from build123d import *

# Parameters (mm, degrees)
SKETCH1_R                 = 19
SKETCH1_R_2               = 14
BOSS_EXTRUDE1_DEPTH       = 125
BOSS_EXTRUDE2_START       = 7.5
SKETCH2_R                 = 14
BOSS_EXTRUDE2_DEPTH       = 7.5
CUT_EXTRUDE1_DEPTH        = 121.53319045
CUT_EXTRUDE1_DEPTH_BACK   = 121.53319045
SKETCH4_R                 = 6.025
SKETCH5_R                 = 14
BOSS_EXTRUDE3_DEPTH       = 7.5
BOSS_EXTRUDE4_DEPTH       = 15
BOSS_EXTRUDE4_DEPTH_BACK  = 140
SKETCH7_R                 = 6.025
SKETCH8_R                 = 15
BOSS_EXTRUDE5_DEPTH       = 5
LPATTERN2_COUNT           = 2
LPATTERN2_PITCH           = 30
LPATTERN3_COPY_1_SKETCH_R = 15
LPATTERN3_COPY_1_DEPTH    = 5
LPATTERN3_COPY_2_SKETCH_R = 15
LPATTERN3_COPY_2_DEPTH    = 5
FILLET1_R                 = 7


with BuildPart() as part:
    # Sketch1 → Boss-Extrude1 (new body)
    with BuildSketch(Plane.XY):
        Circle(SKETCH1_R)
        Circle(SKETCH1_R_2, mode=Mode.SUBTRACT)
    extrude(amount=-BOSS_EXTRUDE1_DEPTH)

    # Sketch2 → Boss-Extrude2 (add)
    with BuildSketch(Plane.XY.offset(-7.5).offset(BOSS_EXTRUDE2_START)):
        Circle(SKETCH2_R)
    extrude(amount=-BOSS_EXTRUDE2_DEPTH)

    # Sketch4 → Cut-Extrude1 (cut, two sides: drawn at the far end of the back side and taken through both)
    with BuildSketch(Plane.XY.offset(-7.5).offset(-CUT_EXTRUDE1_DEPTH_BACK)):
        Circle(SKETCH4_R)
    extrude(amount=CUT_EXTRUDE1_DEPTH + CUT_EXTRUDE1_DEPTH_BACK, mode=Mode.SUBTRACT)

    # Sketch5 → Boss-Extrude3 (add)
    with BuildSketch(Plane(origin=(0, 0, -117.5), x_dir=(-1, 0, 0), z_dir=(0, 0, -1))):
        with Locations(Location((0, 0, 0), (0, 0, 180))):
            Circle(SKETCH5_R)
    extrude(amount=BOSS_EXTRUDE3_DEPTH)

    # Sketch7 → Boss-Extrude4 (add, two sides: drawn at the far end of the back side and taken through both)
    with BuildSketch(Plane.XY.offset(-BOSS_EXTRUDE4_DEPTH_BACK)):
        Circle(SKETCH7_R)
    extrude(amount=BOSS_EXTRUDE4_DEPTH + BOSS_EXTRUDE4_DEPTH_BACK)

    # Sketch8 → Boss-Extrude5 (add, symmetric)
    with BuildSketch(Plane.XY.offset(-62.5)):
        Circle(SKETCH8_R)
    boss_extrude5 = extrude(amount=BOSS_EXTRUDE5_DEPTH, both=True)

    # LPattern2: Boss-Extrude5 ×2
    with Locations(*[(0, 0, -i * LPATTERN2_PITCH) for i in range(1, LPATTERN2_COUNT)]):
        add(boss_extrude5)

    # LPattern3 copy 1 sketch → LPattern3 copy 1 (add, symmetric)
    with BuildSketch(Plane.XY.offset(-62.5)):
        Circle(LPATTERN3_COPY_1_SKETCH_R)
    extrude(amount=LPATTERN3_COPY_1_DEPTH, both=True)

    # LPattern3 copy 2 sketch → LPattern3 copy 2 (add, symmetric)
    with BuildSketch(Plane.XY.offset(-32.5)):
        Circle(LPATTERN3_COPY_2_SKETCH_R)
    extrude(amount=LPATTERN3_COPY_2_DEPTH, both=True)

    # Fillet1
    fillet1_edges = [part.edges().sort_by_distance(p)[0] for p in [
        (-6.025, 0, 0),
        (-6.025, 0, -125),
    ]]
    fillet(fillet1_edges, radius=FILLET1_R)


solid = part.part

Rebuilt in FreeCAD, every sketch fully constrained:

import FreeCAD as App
import Part
import Sketcher

V = App.Vector
Q = App.Units.Quantity


def edges_at(feature, points):
    """Names of the edges that pass closest to the given points."""
    edges = feature.Shape.Edges
    near = lambda p: min(range(len(edges)), key=lambda i: edges[i].distToShape(Part.Vertex(*p))[0])
    return sorted({f"Edge{near(p) + 1}" for p in points})

doc = App.newDocument("Part")
body = doc.addObject("PartDesign::Body", "Body")

sketch1 = body.newObject("Sketcher::SketchObject", "Sketch")
sketch1.AttachmentSupport = (doc.getObject("XY_Plane"), [""])
sketch1.MapMode = "FlatFace"
sketch1.addGeometry([
    Part.Circle(V(0, 0, 0), V(0, 0, 1), 19),
    Part.Circle(V(0, 0, 0), V(0, 0, 1), 14),
], False)
sketch1.addConstraint([
    Sketcher.Constraint("Coincident", 0, 3, -1, 1),
    Sketcher.Constraint("Coincident", 1, 3, -1, 1),
    Sketcher.Constraint("Diameter", 0, Q("38 mm")),
    Sketcher.Constraint("Diameter", 1, Q("28 mm")),
])
pad1 = body.newObject("PartDesign::Pad", "Pad")
pad1.Profile = sketch1
pad1.Length = 125
pad1.Reversed = True

sketch2 = body.newObject("Sketcher::SketchObject", "Sketch001")
sketch2.AttachmentSupport = (doc.getObject("XY_Plane"), [""])
sketch2.MapMode = "FlatFace"
sketch2.addGeometry(Part.Circle(V(0, 0, 0), V(0, 0, 1), 14), False)
sketch2.addConstraint([
    Sketcher.Constraint("Coincident", 0, 3, -1, 1),
    Sketcher.Constraint("Diameter", 0, Q("28 mm")),
])
pad2 = body.newObject("PartDesign::Pad", "Pad001")
pad2.Profile = sketch2
pad2.Length = 7.5
pad2.Reversed = True

sketch3 = body.newObject("Sketcher::SketchObject", "Sketch002")
sketch3.AttachmentSupport = (doc.getObject("XY_Plane"), [""])
sketch3.MapMode = "FlatFace"
sketch3.AttachmentOffset = App.Placement(V(0, 0, -7.5), App.Rotation())
sketch3.addGeometry(Part.Circle(V(0, 0, 0), V(0, 0, 1), 6), False)
sketch3.addConstraint([
    Sketcher.Constraint("Coincident", 0, 3, -1, 1),
    Sketcher.Constraint("Diameter", 0, Q("12.05 mm")),
])
pocket1 = body.newObject("PartDesign::Pocket", "Pocket")
pocket1.Profile = sketch3
pocket1.Type = "ThroughAll"
pocket1.Midplane = True

sketch4 = body.newObject("Sketcher::SketchObject", "Sketch003")
sketch4.AttachmentSupport = (doc.getObject("XY_Plane"), [""])
sketch4.MapMode = "FlatFace"
sketch4.AttachmentOffset = App.Placement(V(0, 0, -117.5), App.Rotation())
sketch4.addGeometry(Part.Circle(V(0, 0, 0), V(0, 0, 1), 14), False)
sketch4.addConstraint([
    Sketcher.Constraint("Coincident", 0, 3, -1, 1),
    Sketcher.Constraint("Diameter", 0, Q("28 mm")),
])
pad3 = body.newObject("PartDesign::Pad", "Pad002")
pad3.Profile = sketch4
pad3.Length = 7.5
pad3.Reversed = True

sketch5 = body.newObject("Sketcher::SketchObject", "Sketch004")
sketch5.AttachmentSupport = (doc.getObject("XY_Plane"), [""])
sketch5.MapMode = "FlatFace"
sketch5.addGeometry(Part.Circle(V(0, 0, 0), V(0, 0, 1), 6), False)
sketch5.addConstraint([
    Sketcher.Constraint("Coincident", 0, 3, -1, 1),
    Sketcher.Constraint("Diameter", 0, Q("12.05 mm")),
])
pad4 = body.newObject("PartDesign::Pad", "Pad003")
pad4.Profile = sketch5
pad4.Type = "TwoLengths"
pad4.Length = 15
pad4.Length2 = 140

sketch6 = body.newObject("Sketcher::SketchObject", "Sketch005")
sketch6.AttachmentSupport = (doc.getObject("XY_Plane"), [""])
sketch6.MapMode = "FlatFace"
sketch6.AttachmentOffset = App.Placement(V(0, 0, -62.5), App.Rotation())
sketch6.addGeometry(Part.Circle(V(0, 0, 0), V(0, 0, 1), 15), False)
sketch6.addConstraint([
    Sketcher.Constraint("Coincident", 0, 3, -1, 1),
    Sketcher.Constraint("Diameter", 0, Q("30 mm")),
])
pad5 = body.newObject("PartDesign::Pad", "Pad004")
pad5.Profile = sketch6
pad5.Length = 10
pad5.Midplane = True
doc.recompute()

linearpattern = body.newObject("PartDesign::LinearPattern", "LinearPattern")
linearpattern.Originals = [pad5]
linearpattern.Direction = (doc.getObject("Z_Axis"), [""])
linearpattern.Mode = "offset"
linearpattern.Offset = 30
linearpattern.Occurrences = 2
linearpattern.Reversed = True
body.Tip = linearpattern

sketch7 = body.newObject("Sketcher::SketchObject", "Sketch006")
sketch7.AttachmentSupport = (doc.getObject("XY_Plane"), [""])
sketch7.MapMode = "FlatFace"
sketch7.AttachmentOffset = App.Placement(V(0, 0, -62.5), App.Rotation())
sketch7.addGeometry(Part.Circle(V(0, 0, 0), V(0, 0, 1), 15), False)
sketch7.addConstraint([
    Sketcher.Constraint("Coincident", 0, 3, -1, 1),
    Sketcher.Constraint("Diameter", 0, Q("30 mm")),
])
pad6 = body.newObject("PartDesign::Pad", "Pad005")
pad6.Profile = sketch7
pad6.Length = 10
pad6.Midplane = True

sketch8 = body.newObject("Sketcher::SketchObject", "Sketch007")
sketch8.AttachmentSupport = (doc.getObject("XY_Plane"), [""])
sketch8.MapMode = "FlatFace"
sketch8.AttachmentOffset = App.Placement(V(0, 0, -32.5), App.Rotation())
sketch8.addGeometry(Part.Circle(V(0, 0, 0), V(0, 0, 1), 15), False)
sketch8.addConstraint([
    Sketcher.Constraint("Coincident", 0, 3, -1, 1),
    Sketcher.Constraint("Diameter", 0, Q("30 mm")),
])
pad7 = body.newObject("PartDesign::Pad", "Pad006")
pad7.Profile = sketch8
pad7.Length = 10
pad7.Midplane = True
doc.recompute()

fillet = body.newObject("PartDesign::Fillet", "Fillet")
fillet.Base = (pad7, edges_at(pad7, [(-6.025, 0, 0), (-6.025, 0, -125)]))
fillet.Radius = 7

doc.recompute()
